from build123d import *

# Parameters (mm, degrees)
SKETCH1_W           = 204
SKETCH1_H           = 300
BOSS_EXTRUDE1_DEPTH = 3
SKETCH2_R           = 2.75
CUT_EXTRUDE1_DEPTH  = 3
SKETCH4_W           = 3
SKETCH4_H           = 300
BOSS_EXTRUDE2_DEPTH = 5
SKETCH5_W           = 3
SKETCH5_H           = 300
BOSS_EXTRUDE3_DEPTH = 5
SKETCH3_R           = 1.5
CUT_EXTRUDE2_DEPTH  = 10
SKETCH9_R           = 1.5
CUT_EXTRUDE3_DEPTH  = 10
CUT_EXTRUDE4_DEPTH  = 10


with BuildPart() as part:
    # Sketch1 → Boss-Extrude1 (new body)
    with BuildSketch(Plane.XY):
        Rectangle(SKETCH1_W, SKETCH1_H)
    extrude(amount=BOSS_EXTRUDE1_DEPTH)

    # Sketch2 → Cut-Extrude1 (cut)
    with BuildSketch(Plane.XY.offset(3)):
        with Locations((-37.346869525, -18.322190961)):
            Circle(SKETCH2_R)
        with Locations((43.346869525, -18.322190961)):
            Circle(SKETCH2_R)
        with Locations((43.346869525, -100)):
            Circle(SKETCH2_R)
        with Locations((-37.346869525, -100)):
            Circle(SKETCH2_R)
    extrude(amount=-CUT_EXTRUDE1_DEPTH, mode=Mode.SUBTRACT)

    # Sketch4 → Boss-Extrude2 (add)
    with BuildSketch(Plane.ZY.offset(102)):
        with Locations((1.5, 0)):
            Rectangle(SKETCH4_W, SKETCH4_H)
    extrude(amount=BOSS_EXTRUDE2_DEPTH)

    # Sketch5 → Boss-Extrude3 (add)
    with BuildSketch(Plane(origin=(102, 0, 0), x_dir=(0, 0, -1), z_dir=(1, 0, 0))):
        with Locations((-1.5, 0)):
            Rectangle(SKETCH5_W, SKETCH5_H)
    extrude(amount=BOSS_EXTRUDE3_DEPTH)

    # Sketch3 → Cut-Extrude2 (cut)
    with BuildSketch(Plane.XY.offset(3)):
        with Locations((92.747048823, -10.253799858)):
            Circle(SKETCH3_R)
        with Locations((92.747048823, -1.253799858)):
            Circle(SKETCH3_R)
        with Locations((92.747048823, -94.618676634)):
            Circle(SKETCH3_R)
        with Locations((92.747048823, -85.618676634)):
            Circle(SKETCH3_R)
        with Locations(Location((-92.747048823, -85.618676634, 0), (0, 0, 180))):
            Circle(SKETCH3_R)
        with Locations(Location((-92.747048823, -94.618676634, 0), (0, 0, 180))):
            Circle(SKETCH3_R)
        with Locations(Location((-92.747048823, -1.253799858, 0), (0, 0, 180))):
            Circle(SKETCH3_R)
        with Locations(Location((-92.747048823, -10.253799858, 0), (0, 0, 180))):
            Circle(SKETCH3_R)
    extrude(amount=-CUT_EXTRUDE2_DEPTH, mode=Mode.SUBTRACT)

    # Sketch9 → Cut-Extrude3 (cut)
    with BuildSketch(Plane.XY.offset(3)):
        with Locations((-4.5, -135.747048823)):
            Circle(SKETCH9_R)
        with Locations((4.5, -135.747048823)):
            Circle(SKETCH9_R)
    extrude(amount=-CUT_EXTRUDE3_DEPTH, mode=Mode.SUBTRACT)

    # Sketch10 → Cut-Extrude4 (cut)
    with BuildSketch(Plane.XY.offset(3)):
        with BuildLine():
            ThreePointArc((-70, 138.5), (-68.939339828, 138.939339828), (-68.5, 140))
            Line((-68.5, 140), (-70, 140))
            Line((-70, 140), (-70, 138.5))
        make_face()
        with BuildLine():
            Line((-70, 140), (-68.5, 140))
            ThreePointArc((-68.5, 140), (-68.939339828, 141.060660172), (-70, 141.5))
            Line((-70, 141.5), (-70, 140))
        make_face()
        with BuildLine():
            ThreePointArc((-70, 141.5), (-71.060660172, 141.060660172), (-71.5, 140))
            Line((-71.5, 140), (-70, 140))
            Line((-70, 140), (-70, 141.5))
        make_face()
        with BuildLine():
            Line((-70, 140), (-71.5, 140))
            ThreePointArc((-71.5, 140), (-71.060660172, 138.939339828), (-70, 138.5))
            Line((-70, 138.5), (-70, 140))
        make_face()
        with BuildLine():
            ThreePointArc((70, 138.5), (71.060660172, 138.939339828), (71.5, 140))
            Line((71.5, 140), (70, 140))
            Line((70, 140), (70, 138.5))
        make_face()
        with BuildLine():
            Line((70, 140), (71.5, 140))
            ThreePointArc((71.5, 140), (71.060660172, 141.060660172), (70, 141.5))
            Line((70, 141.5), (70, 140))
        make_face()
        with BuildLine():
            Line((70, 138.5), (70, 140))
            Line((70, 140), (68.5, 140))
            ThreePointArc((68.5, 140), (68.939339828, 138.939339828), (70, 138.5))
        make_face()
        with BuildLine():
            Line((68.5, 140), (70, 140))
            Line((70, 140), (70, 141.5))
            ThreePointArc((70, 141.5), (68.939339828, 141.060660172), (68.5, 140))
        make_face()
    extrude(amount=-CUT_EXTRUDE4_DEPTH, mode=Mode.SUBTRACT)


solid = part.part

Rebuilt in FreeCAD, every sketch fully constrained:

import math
import FreeCAD as App
import Part
import Sketcher

V = App.Vector


def add_polygon(sketch, points):
    """Adds a closed chain of lines whose ends are joined by coincident constraints."""
    first, n = sketch.GeometryCount, len(points)
    for a, b in zip(points, points[1:] + points[:1]):
        sketch.addGeometry(Part.LineSegment(App.Vector(*a, 0), App.Vector(*b, 0)), False)
    for i in range(n):
        sketch.addConstraint(Sketcher.Constraint("Coincident", first + i, 2, first + (i + 1) % n, 1))

doc = App.newDocument("Part")
body = doc.addObject("PartDesign::Body", "Body")

# Sketch on XY plane
sketch1 = body.newObject("Sketcher::SketchObject", "Sketch")
sketch1.AttachmentSupport = (doc.getObject("XY_Plane"), [""])
sketch1.MapMode = "FlatFace"
add_polygon(sketch1, [(-102, 150), (-102, -150), (102, -150), (102, 150)])  # lines 0-3
sketch1.addConstraint(Sketcher.Constraint("Vertical", 0))
sketch1.addConstraint(Sketcher.Constraint("Horizontal", 1))
sketch1.addConstraint(Sketcher.Constraint("Vertical", 2))
sketch1.addConstraint(Sketcher.Constraint("Horizontal", 3))
sketch1.addConstraint(Sketcher.Constraint("Symmetric", 0, 2, 2, 2, -1, 1))
sketch1.addConstraint(Sketcher.Constraint("DistanceX", 1, 1, 1, 2, 204.0))
sketch1.addConstraint(Sketcher.Constraint("DistanceY", 0, 2, 0, 1, 300.0))
pad1 = body.newObject("PartDesign::Pad", "Pad")
pad1.Profile = sketch1
pad1.Length = 3

# Sketch on XY plane
sketch2 = body.newObject("Sketcher::SketchObject", "Sketch001")
sketch2.AttachmentSupport = (doc.getObject("XY_Plane"), [""])
sketch2.MapMode = "FlatFace"
sketch2.AttachmentOffset = App.Placement(V(0, 0, 3), App.Rotation())
sketch2.addGeometry(Part.Circle(V(-37.3, -18.3, 0), V(0, 0, 1), 2.8), False)
sketch2.addGeometry(Part.Circle(V(43.3, -18.3, 0), V(0, 0, 1), 2.8), False)
sketch2.addGeometry(Part.Circle(V(43.3, -100, 0), V(0, 0, 1), 2.8), False)
sketch2.addGeometry(Part.Circle(V(-37.3, -100, 0), V(0, 0, 1), 2.8), False)
sketch2.addConstraint(Sketcher.Constraint("Equal", 0, 1))
sketch2.addConstraint(Sketcher.Constraint("Equal", 1, 2))
sketch2.addConstraint(Sketcher.Constraint("Equal", 2, 3))
sketch2.addConstraint(Sketcher.Constraint("Horizontal", 0, 3, 1, 3))
sketch2.addConstraint(Sketcher.Constraint("Horizontal", 2, 3, 3, 3))
sketch2.addConstraint(Sketcher.Constraint("Vertical", 1, 3, 2, 3))
sketch2.addConstraint(Sketcher.Constraint("Vertical", 0, 3, 3, 3))
sketch2.addConstraint(Sketcher.Constraint("Diameter", 0, 5.5))
sketch2.addConstraint(Sketcher.Constraint("DistanceY", 2, 3, -1, 1, 100.0))
sketch2.addConstraint(Sketcher.Constraint("DistanceX", 0, 3, -1, 1, 37.34687))
sketch2.addConstraint(Sketcher.Constraint("DistanceY", 0, 3, -1, 1, 18.322191))
sketch2.addConstraint(Sketcher.Constraint("DistanceX", -1, 1, 1, 3, 43.34687))
pocket1 = body.newObject("PartDesign::Pocket", "Pocket")
pocket1.Profile = sketch2
pocket1.Length = 3

# Sketch on YZ plane
sketch3 = body.newObject("Sketcher::SketchObject", "Sketch002")
sketch3.AttachmentSupport = (doc.getObject("YZ_Plane"), [""])
sketch3.MapMode = "FlatFace"
sketch3.AttachmentOffset = App.Placement(V(0, 0, -102), App.Rotation())
add_polygon(sketch3, [(150, 0), (-150, 0), (-150, 3), (150, 3)])  # lines 0-3
sketch3.addConstraint(Sketcher.Constraint("Horizontal", 0))
sketch3.addConstraint(Sketcher.Constraint("Vertical", 1))
sketch3.addConstraint(Sketcher.Constraint("Horizontal", 2))
sketch3.addConstraint(Sketcher.Constraint("Vertical", 3))
sketch3.addConstraint(Sketcher.Constraint("Symmetric", 0, 2, 3, 2, -1, 1))
sketch3.addConstraint(Sketcher.Constraint("DistanceX", 0, 2, 0, 1, 300.0))
sketch3.addConstraint(Sketcher.Constraint("DistanceY", 1, 1, 1, 2, 3.0))
pad2 = body.newObject("PartDesign::Pad", "Pad001")
pad2.Profile = sketch3
pad2.Length = 5
pad2.Reversed = True

# Sketch on YZ plane
sketch4 = body.newObject("Sketcher::SketchObject", "Sketch003")
sketch4.AttachmentSupport = (doc.getObject("YZ_Plane"), [""])
sketch4.MapMode = "FlatFace"
sketch4.AttachmentOffset = App.Placement(V(0, 0, 102), App.Rotation())
add_polygon(sketch4, [(150, 3), (-150, 3), (-150, 0), (150, 0)])  # lines 0-3
sketch4.addConstraint(Sketcher.Constraint("Horizontal", 0))
sketch4.addConstraint(Sketcher.Constraint("Vertical", 1))
sketch4.addConstraint(Sketcher.Constraint("Horizontal", 2))
sketch4.addConstraint(Sketcher.Constraint("Vertical", 3))
sketch4.addConstraint(Sketcher.Constraint("Symmetric", 1, 2, 2, 2, -1, 1))
sketch4.addConstraint(Sketcher.Constraint("DistanceX", 0, 2, 0, 1, 300.0))
sketch4.addConstraint(Sketcher.Constraint("DistanceY", 1, 2, 1, 1, 3.0))
pad3 = body.newObject("PartDesign::Pad", "Pad002")
pad3.Profile = sketch4
pad3.Length = 5

# Sketch on XY plane
sketch5 = body.newObject("Sketcher::SketchObject", "Sketch004")
sketch5.AttachmentSupport = (doc.getObject("XY_Plane"), [""])
sketch5.MapMode = "FlatFace"
sketch5.AttachmentOffset = App.Placement(V(0, 0, 3), App.Rotation())
sketch5.addGeometry(Part.Circle(V(92.7, -10.3, 0), V(0, 0, 1), 1.5), False)
sketch5.addGeometry(Part.Circle(V(92.7, -1.3, 0), V(0, 0, 1), 1.5), False)
sketch5.addGeometry(Part.Circle(V(92.7, -94.6, 0), V(0, 0, 1), 1.5), False)
sketch5.addGeometry(Part.Circle(V(92.7, -85.6, 0), V(0, 0, 1), 1.5), False)
sketch5.addGeometry(Part.Circle(V(-92.7, -85.6, 0), V(0, 0, 1), 1.5), False)
sketch5.addGeometry(Part.Circle(V(-92.7, -94.6, 0), V(0, 0, 1), 1.5), False)
sketch5.addGeometry(Part.Circle(V(-92.7, -1.3, 0), V(0, 0, 1), 1.5), False)
sketch5.addGeometry(Part.Circle(V(-92.7, -10.3, 0), V(0, 0, 1), 1.5), False)
sketch5.addConstraint(Sketcher.Constraint("Equal", 0, 1))
sketch5.addConstraint(Sketcher.Constraint("Equal", 1, 2))
sketch5.addConstraint(Sketcher.Constraint("Equal", 2, 3))
sketch5.addConstraint(Sketcher.Constraint("Equal", 3, 4))
sketch5.addConstraint(Sketcher.Constraint("Equal", 4, 5))
sketch5.addConstraint(Sketcher.Constraint("Equal", 5, 6))
sketch5.addConstraint(Sketcher.Constraint("Equal", 6, 7))
sketch5.addConstraint(Sketcher.Constraint("Symmetric", 3, 3, 4, 3, -2))
sketch5.addConstraint(Sketcher.Constraint("Symmetric", 2, 3, 5, 3, -2))
sketch5.addConstraint(Sketcher.Constraint("Symmetric", 1, 3, 6, 3, -2))
sketch5.addConstraint(Sketcher.Constraint("Symmetric", 0, 3, 7, 3, -2))
sketch5.addConstraint(Sketcher.Constraint("Vertical", 0, 3, 1, 3))
sketch5.addConstraint(Sketcher.Constraint("Vertical", 1, 3, 2, 3))
sketch5.addConstraint(Sketcher.Constraint("Vertical", 2, 3, 3, 3))
sketch5.addConstraint(Sketcher.Constraint("Diameter", 0, 3.0))
sketch5.addConstraint(Sketcher.Constraint("DistanceY", 0, 3, 1, 3, 9.0))
sketch5.addConstraint(Sketcher.Constraint("DistanceY", 2, 3, 3, 3, 9.0))
sketch5.addConstraint(Sketcher.Constraint("DistanceY", 0, 3, -1, 1, 10.2538))
sketch5.addConstraint(Sketcher.Constraint("DistanceX", -1, 1, 0, 3, 92.747049))
sketch5.addConstraint(Sketcher.Constraint("DistanceY", 2, 3, -1, 1, 94.618677))
pocket2 = body.newObject("PartDesign::Pocket", "Pocket001")
pocket2.Profile = sketch5
pocket2.Length = 10

# Sketch on XY plane
sketch6 = body.newObject("Sketcher::SketchObject", "Sketch005")
sketch6.AttachmentSupport = (doc.getObject("XY_Plane"), [""])
sketch6.MapMode = "FlatFace"
sketch6.AttachmentOffset = App.Placement(V(0, 0, 3), App.Rotation())
sketch6.addGeometry(Part.Circle(V(-4.5, -135.7, 0), V(0, 0, 1), 1.5), False)
sketch6.addGeometry(Part.Circle(V(4.5, -135.7, 0), V(0, 0, 1), 1.5), False)
sketch6.addConstraint(Sketcher.Constraint("Equal", 0, 1))
sketch6.addConstraint(Sketcher.Constraint("Symmetric", 0, 3, 1, 3, -2))
sketch6.addConstraint(Sketcher.Constraint("Diameter", 0, 3.0))
sketch6.addConstraint(Sketcher.Constraint("DistanceX", 0, 3, 1, 3, 9.0))
sketch6.addConstraint(Sketcher.Constraint("DistanceY", 0, 3, -1, 1, 135.747049))
pocket3 = body.newObject("PartDesign::Pocket", "Pocket002")
pocket3.Profile = sketch6
pocket3.Length = 10

# Sketch on XY plane
sketch7 = body.newObject("Sketcher::SketchObject", "Sketch006")
sketch7.AttachmentSupport = (doc.getObject("XY_Plane"), [""])
sketch7.MapMode = "FlatFace"
sketch7.AttachmentOffset = App.Placement(V(0, 0, 3), App.Rotation())
sketch7.addGeometry(Part.ArcOfCircle(Part.Circle(V(-70, 140, 0), V(0, 0, 1), 1.5), math.radians(-90), math.radians(0)), False)
sketch7.addGeometry(Part.ArcOfCircle(Part.Circle(V(-70, 140, 0), V(0, 0, 1), 1.5), math.radians(0), math.radians(90)), False)
sketch7.addGeometry(Part.ArcOfCircle(Part.Circle(V(-70, 140, 0), V(0, 0, 1), 1.5), math.radians(90), math.radians(180)), False)
sketch7.addGeometry(Part.ArcOfCircle(Part.Circle(V(-70, 140, 0), V(0, 0, 1), 1.5), math.radians(180), math.radians(270)), False)
sketch7.addGeometry(Part.ArcOfCircle(Part.Circle(V(70, 140, 0), V(0, 0, 1), 1.5), math.radians(0), math.radians(90)), False)
sketch7.addGeometry(Part.ArcOfCircle(Part.Circle(V(70, 140, 0), V(0, 0, 1), 1.5), math.radians(90), math.radians(180)), False)
sketch7.addGeometry(Part.ArcOfCircle(Part.Circle(V(70, 140, 0), V(0, 0, 1), 1.5), math.radians(180), math.radians(270)), False)
sketch7.addGeometry(Part.ArcOfCircle(Part.Circle(V(70, 140, 0), V(0, 0, 1), 1.5), math.radians(-90), math.radians(0)), False)
sketch7.addConstraint(Sketcher.Constraint("Tangent", 0, 2, 1, 1))
sketch7.addConstraint(Sketcher.Constraint("Tangent", 1, 2, 2, 1))
sketch7.addConstraint(Sketcher.Constraint("Tangent", 2, 2, 3, 1))
sketch7.addConstraint(Sketcher.Constraint("Tangent", 3, 2, 0, 1))
sketch7.addConstraint(Sketcher.Constraint("Tangent", 4, 2, 5, 1))
sketch7.addConstraint(Sketcher.Constraint("Tangent", 5, 2, 6, 1))
sketch7.addConstraint(Sketcher.Constraint("Tangent", 6, 2, 7, 1))
sketch7.addConstraint(Sketcher.Constraint("Tangent", 7, 2, 4, 1))
sketch7.addConstraint(Sketcher.Constraint("Equal", 0, 1))
sketch7.addConstraint(Sketcher.Constraint("Equal", 3, 4))
sketch7.addConstraint(Sketcher.Constraint("Equal", 4, 5))
sketch7.addConstraint(Sketcher.Constraint("Symmetric", 0, 3, 4, 3, -2))
sketch7.addConstraint(Sketcher.Constraint("Horizontal", 7, 3, 0, 2))
sketch7.addConstraint(Sketcher.Constraint("Horizontal", 0, 2, 2, 2))
sketch7.addConstraint(Sketcher.Constraint("Horizontal", 2, 2, 5, 2))
sketch7.addConstraint(Sketcher.Constraint("Horizontal", 5, 2, 7, 2))
sketch7.addConstraint(Sketcher.Constraint("Vertical", 3, 3, 1, 2))
sketch7.addConstraint(Sketcher.Constraint("Vertical", 1, 2, 3, 2))
sketch7.addConstraint(Sketcher.Constraint("Vertical", 7, 3, 4, 2))
sketch7.addConstraint(Sketcher.Constraint("Vertical", 4, 2, 6, 2))
sketch7.addConstraint(Sketcher.Constraint("Radius", 0, 1.5))
sketch7.addConstraint(Sketcher.Constraint("DistanceX", 0, 3, -1, 1, 70.0))
sketch7.addConstraint(Sketcher.Constraint("DistanceY", -1, 1, 0, 3, 140.0))
pocket4 = body.newObject("PartDesign::Pocket", "Pocket003")
pocket4.Profile = sketch7
pocket4.Length = 10

doc.recompute()
